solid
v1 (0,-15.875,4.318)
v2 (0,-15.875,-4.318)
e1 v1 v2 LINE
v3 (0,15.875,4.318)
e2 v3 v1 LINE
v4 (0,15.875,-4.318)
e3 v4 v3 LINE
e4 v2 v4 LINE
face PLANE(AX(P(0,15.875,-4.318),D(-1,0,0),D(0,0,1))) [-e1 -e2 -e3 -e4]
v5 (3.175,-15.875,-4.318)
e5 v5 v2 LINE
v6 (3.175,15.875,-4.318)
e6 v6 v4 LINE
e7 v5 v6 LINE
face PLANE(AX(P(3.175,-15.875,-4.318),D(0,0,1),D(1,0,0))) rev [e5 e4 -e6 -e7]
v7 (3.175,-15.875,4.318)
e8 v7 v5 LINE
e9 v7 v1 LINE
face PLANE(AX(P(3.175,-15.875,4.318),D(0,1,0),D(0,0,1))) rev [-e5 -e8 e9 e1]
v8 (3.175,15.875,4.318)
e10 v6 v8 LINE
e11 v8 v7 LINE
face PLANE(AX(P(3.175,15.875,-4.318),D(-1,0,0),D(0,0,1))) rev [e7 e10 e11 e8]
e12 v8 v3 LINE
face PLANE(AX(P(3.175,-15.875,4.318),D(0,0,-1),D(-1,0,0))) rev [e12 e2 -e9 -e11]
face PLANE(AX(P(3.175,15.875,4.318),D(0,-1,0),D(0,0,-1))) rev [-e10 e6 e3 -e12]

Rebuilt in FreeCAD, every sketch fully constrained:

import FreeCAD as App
import Part
import Sketcher

V = App.Vector
Q = App.Units.Quantity

doc = App.newDocument("Part")
body = doc.addObject("PartDesign::Body", "Body")

sketch1 = body.newObject("Sketcher::SketchObject", "Sketch")
sketch1.AttachmentSupport = (doc.getObject("YZ_Plane"), [""])
sketch1.MapMode = "FlatFace"
sketch1.addGeometry([
    Part.LineSegment(V(16, 4, 0), V(-16, 4, 0)),
    Part.LineSegment(V(-16, 4, 0), V(-16, -4, 0)),
    Part.LineSegment(V(-16, -4, 0), V(16, -4, 0)),
    Part.LineSegment(V(16, -4, 0), V(16, 4, 0)),
], False)
sketch1.addConstraint([
    Sketcher.Constraint("Coincident", 0, 2, 1, 1),
    Sketcher.Constraint("Coincident", 1, 2, 2, 1),
    Sketcher.Constraint("Coincident", 2, 2, 3, 1),
    Sketcher.Constraint("Coincident", 3, 2, 0, 1),
    Sketcher.Constraint("Horizontal", 0),
    Sketcher.Constraint("Vertical", 1),
    Sketcher.Constraint("Horizontal", 2),
    Sketcher.Constraint("Vertical", 3),
    Sketcher.Constraint("Symmetric", 0, 2, 2, 2, -1, 1),
    Sketcher.Constraint("DistanceX", 0, 2, 0, 1, Q("1.25 in")),
    Sketcher.Constraint("DistanceY", 1, 2, 1, 1, Q("0.34 in")),
])
pad1 = body.newObject("PartDesign::Pad", "Pad")
pad1.Profile = sketch1
pad1.Length = Q("0.125 in")

doc.recompute()
